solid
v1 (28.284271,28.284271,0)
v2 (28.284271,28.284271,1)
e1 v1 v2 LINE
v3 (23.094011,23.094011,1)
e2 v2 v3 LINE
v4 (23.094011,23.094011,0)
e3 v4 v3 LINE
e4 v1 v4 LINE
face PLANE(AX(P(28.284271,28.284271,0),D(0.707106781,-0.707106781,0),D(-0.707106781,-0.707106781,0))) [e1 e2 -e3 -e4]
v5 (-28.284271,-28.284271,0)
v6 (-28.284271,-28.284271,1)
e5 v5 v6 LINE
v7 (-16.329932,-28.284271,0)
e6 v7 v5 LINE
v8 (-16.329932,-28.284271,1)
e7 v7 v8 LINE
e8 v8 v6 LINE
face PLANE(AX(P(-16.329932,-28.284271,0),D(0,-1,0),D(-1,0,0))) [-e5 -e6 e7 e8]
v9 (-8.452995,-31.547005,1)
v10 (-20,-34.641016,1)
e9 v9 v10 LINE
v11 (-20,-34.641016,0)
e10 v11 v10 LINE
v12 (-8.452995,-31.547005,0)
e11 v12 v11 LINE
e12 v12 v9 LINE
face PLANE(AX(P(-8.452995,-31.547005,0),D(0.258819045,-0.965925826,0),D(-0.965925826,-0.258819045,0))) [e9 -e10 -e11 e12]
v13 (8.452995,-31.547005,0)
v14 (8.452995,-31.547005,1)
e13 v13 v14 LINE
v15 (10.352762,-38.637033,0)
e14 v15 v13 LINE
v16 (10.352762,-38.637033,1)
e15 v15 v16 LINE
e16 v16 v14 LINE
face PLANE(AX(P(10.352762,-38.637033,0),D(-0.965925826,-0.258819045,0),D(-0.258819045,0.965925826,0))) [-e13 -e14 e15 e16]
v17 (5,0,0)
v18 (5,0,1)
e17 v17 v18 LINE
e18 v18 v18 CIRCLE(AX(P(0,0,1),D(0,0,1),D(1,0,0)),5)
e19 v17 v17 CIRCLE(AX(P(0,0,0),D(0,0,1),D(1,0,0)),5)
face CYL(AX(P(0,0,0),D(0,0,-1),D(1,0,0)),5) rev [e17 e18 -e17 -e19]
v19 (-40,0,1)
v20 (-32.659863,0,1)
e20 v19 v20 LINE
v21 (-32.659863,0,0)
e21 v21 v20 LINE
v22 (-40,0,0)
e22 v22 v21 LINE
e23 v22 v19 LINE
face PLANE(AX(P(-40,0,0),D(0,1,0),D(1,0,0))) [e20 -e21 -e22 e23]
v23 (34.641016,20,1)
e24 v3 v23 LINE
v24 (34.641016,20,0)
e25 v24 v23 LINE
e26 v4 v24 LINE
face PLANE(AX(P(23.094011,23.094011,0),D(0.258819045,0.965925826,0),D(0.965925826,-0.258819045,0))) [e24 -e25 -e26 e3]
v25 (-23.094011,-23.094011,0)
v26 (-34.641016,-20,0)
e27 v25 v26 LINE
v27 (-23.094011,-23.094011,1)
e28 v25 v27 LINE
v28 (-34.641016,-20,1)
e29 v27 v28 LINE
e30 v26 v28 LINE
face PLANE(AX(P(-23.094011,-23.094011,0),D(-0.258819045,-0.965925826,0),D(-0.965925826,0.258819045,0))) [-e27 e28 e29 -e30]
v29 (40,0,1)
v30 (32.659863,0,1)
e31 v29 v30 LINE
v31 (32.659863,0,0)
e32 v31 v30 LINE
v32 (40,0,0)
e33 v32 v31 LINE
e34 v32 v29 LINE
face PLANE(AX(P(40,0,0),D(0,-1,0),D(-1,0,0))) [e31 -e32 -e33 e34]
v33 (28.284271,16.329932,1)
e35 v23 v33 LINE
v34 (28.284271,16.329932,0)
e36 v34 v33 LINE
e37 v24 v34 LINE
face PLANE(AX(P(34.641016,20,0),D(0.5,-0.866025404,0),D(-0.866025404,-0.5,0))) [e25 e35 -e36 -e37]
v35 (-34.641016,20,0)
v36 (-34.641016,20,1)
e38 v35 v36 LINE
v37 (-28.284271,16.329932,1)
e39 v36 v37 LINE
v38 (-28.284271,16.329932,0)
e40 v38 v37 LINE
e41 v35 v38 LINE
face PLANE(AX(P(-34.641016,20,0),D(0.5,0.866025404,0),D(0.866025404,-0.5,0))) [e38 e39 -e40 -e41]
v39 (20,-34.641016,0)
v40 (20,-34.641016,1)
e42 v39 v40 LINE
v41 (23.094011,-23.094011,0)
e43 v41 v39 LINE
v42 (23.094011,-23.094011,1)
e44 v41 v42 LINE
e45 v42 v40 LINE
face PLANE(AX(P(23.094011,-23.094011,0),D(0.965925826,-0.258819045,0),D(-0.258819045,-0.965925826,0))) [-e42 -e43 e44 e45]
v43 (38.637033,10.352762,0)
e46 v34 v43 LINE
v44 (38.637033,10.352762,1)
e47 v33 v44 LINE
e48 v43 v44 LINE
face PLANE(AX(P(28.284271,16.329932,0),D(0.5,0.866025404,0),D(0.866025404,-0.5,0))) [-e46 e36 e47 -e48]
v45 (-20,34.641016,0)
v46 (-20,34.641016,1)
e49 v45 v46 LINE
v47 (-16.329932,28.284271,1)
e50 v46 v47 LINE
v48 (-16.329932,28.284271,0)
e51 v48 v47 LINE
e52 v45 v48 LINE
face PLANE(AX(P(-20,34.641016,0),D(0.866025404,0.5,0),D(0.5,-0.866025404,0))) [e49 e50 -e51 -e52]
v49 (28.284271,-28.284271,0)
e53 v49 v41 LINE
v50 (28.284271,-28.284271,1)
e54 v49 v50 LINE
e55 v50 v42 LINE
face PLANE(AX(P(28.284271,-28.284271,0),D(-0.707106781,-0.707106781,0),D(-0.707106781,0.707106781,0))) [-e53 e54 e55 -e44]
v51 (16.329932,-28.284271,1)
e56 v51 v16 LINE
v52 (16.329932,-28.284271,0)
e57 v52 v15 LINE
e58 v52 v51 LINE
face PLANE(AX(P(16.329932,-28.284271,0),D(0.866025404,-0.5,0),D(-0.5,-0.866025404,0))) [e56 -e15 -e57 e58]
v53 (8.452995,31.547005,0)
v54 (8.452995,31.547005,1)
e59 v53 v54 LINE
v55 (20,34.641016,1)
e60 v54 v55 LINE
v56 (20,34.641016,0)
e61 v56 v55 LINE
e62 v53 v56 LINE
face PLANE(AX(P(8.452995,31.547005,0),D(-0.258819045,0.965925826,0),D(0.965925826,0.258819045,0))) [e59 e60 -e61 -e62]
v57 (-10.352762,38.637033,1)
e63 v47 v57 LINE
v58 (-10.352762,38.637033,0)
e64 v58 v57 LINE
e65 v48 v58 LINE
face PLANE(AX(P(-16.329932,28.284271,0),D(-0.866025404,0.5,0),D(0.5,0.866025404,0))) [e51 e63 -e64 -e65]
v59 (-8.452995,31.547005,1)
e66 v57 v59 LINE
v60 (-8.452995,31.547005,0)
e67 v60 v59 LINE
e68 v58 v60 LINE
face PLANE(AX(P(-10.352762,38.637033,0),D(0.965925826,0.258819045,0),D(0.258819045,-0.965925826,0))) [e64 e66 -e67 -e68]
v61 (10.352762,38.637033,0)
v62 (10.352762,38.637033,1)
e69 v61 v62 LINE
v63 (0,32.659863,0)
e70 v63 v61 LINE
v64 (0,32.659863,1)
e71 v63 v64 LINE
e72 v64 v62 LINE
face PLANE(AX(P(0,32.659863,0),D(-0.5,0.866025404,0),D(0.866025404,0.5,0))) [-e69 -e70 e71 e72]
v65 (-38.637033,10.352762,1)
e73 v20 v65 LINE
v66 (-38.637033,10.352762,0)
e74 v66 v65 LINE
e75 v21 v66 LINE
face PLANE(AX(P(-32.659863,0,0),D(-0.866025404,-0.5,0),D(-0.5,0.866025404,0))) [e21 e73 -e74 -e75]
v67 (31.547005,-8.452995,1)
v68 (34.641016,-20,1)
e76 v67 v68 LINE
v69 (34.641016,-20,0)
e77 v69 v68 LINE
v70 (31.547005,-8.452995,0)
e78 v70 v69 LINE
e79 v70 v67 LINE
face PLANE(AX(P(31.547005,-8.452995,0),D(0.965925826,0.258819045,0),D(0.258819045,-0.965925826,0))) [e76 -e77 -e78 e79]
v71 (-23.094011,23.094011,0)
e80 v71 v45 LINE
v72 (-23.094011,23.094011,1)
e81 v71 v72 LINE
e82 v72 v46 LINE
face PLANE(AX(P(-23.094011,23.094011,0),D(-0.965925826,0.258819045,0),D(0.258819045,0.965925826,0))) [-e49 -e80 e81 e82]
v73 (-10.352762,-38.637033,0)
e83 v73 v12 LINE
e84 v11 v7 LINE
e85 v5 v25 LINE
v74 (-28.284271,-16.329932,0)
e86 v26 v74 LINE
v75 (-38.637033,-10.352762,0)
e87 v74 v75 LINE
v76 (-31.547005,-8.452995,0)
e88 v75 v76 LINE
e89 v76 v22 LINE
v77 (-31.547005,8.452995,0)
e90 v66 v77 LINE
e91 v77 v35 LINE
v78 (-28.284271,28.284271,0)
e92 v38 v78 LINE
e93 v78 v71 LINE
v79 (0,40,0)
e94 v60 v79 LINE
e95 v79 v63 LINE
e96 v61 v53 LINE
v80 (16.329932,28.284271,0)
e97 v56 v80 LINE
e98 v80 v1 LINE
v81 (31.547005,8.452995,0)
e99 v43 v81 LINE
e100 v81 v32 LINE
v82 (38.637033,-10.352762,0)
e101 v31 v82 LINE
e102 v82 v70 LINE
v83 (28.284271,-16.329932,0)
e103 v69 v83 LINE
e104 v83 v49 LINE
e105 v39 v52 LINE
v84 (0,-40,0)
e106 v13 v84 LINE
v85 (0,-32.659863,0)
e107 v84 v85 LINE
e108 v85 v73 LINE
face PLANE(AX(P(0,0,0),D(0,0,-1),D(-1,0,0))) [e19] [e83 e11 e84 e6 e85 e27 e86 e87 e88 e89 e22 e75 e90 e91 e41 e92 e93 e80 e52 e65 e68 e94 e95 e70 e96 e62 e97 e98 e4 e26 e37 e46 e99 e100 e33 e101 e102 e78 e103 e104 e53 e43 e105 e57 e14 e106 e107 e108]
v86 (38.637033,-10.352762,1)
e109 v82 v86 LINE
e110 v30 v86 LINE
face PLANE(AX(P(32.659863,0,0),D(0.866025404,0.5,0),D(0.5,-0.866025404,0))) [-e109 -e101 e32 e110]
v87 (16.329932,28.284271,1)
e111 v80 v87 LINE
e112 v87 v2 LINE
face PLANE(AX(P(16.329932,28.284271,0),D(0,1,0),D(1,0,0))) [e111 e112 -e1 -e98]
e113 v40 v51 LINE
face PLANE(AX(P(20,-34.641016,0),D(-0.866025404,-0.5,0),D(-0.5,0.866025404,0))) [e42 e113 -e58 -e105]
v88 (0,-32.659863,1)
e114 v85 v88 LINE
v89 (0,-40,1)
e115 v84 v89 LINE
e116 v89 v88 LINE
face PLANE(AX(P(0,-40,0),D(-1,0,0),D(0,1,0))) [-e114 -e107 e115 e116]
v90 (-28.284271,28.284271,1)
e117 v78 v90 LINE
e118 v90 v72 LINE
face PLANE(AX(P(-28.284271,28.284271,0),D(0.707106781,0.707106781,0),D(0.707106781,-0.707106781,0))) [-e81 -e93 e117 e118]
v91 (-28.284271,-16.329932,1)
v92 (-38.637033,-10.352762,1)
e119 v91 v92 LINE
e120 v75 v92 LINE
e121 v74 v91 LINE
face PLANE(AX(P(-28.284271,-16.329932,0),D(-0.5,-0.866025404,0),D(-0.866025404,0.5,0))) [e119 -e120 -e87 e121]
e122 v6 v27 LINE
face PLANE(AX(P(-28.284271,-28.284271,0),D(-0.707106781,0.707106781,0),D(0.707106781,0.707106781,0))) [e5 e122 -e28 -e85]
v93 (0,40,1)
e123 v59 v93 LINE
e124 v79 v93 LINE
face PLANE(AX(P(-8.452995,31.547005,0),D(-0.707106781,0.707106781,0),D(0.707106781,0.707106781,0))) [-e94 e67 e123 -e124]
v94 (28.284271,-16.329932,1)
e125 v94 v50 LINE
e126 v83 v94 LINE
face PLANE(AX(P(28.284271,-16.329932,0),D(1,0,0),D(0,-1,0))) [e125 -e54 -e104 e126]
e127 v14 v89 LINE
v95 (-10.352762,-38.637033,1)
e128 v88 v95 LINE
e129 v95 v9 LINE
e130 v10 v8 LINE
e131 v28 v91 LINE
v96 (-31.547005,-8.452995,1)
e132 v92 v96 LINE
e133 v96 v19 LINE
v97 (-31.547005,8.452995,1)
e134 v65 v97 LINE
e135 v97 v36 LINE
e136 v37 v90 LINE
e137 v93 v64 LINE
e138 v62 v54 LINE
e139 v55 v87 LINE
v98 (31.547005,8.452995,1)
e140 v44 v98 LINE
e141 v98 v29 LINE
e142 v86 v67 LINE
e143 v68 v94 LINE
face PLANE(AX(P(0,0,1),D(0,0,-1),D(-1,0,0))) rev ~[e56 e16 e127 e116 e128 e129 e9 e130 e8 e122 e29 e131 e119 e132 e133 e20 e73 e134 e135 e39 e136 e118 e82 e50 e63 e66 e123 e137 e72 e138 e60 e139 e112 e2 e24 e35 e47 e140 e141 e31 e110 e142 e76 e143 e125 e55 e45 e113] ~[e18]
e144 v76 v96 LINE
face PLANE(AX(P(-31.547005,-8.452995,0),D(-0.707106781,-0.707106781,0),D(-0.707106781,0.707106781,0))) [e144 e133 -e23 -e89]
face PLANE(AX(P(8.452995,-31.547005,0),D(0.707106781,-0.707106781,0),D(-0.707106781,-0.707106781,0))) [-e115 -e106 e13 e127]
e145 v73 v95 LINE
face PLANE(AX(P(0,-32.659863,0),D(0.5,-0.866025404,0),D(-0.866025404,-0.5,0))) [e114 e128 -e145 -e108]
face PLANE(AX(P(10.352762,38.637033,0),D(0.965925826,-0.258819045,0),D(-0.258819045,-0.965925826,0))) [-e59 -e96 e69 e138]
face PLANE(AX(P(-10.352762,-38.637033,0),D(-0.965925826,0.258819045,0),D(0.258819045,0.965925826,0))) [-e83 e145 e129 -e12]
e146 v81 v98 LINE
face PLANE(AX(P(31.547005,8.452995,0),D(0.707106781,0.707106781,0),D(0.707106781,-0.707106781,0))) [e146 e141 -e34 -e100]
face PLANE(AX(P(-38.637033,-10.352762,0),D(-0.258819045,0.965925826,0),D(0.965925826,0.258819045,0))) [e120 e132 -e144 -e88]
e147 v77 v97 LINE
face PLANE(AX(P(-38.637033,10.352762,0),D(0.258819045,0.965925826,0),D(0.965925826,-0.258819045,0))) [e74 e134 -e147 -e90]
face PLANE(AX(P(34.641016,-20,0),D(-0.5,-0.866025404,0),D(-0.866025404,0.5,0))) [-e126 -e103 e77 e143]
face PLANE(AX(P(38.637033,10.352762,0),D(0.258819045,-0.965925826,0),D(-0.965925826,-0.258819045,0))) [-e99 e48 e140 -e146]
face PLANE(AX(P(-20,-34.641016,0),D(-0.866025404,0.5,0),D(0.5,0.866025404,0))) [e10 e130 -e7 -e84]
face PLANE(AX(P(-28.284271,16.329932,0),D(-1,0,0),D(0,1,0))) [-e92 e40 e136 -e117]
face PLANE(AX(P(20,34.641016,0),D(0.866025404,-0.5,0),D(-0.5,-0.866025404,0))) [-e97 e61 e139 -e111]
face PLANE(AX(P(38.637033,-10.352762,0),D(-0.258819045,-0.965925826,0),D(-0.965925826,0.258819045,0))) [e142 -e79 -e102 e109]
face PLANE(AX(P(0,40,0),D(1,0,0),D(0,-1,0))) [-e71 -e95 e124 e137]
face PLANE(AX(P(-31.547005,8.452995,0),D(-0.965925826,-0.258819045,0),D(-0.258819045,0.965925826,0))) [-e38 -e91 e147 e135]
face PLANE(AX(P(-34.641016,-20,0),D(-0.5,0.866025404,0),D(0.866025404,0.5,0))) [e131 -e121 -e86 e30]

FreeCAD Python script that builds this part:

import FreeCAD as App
import Part
import Sketcher
Q = App.Units.Quantity


def add_polygon(sketch, points):
    """Adds a closed chain of lines whose ends are joined by coincident constraints."""
    first, n = sketch.GeometryCount, len(points)
    for a, b in zip(points, points[1:] + points[:1]):
        sketch.addGeometry(Part.LineSegment(App.Vector(*a, 0), App.Vector(*b, 0)), False)
    for i in range(n):
        sketch.addConstraint(Sketcher.Constraint("Coincident", first + i, 2, first + (i + 1) % n, 1))

doc = App.newDocument("Part")
body = doc.addObject("PartDesign::Body", "Body")

# Sketch on XY plane
sketch1 = body.newObject("Sketcher::SketchObject", "Sketch")
sketch1.AttachmentSupport = (doc.getObject("XY_Plane"), [""])
sketch1.MapMode = "FlatFace"
add_polygon(sketch1, [(0, 33), (0, 40), (-8, 32), (-10, 39), (-16, 28), (-20, 35), (-23, 23), (-28, 28), (-28, 16), (-35, 20), (-32, 8), (-39, 10), (-33, 0), (-40, 0), (-32, -8), (-39, -10), (-28, -16), (-35, -20), (-23, -23), (-28, -28), (-16, -28), (-20, -35), (-8, -32), (-10, -39), (0, -33), (0, -40), (8, -32), (10, -39), (16, -28), (20, -35), (23, -23), (28, -28), (28, -16), (35, -20), (32, -8), (39, -10), (33, 0), (40, 0), (32, 8), (39, 10), (28, 16), (35, 20), (23, 23), (28, 28), (16, 28), (20, 35), (8, 32), (10, 39)])  # lines 0-47
sketch1.addGeometry(Part.Circle(App.Vector(0, 0, 0), App.Vector(0, 0, 1), 5), False)  # 48
sketch1.addConstraint([
    Sketcher.Constraint("Vertical", 0),
    Sketcher.Constraint("Vertical", 7),
    Sketcher.Constraint("Horizontal", 12),
    Sketcher.Constraint("Horizontal", 19),
    Sketcher.Constraint("Vertical", 24),
    Sketcher.Constraint("Vertical", 31),
    Sketcher.Constraint("Horizontal", 36),
    Sketcher.Constraint("Horizontal", 43),
    Sketcher.Constraint("Coincident", 48, 3, -1, 1),
    Sketcher.Constraint("Symmetric", 0, 2, 24, 2, -1, 1),
    Sketcher.Constraint("Symmetric", 1, 2, 25, 2, -1, 1),
    Sketcher.Constraint("Symmetric", 2, 2, 26, 2, -1, 1),
    Sketcher.Constraint("Symmetric", 3, 2, 27, 2, -1, 1),
    Sketcher.Constraint("Symmetric", 4, 2, 28, 2, -1, 1),
    Sketcher.Constraint("Symmetric", 5, 2, 29, 2, -1, 1),
    Sketcher.Constraint("Symmetric", 6, 2, 30, 2, -1, 1),
    Sketcher.Constraint("Symmetric", 8, 2, 32, 2, -1, 1),
    Sketcher.Constraint("Symmetric", 9, 2, 33, 2, -1, 1),
    Sketcher.Constraint("Symmetric", 10, 2, 34, 2, -1, 1),
    Sketcher.Constraint("Symmetric", 11, 2, 35, 2, -1, 1),
    Sketcher.Constraint("Symmetric", 13, 2, 37, 2, -1, 1),
    Sketcher.Constraint("Symmetric", 14, 2, 38, 2, -1, 1),
    Sketcher.Constraint("Symmetric", 15, 2, 39, 2, -1, 1),
    Sketcher.Constraint("Symmetric", 16, 2, 40, 2, -1, 1),
    Sketcher.Constraint("Symmetric", 17, 2, 41, 2, -1, 1),
    Sketcher.Constraint("Symmetric", 18, 2, 42, 2, -1, 1),
    Sketcher.Constraint("Symmetric", 20, 2, 44, 2, -1, 1),
    Sketcher.Constraint("Symmetric", 21, 2, 45, 2, -1, 1),
    Sketcher.Constraint("Symmetric", 22, 2, 46, 2, -1, 1),
    Sketcher.Constraint("Symmetric", 21, 2, 25, 2, -2),
    Sketcher.Constraint("Symmetric", 22, 2, 26, 2, -2),
    Sketcher.Constraint("Symmetric", 19, 2, 27, 2, -2),
    Sketcher.Constraint("Symmetric", 20, 2, 28, 2, -2),
    Sketcher.Constraint("Symmetric", 17, 2, 29, 2, -2),
    Sketcher.Constraint("Symmetric", 18, 2, 30, 2, -2),
    Sketcher.Constraint("Symmetric", 15, 2, 31, 2, -2),
    Sketcher.Constraint("Symmetric", 16, 2, 32, 2, -2),
    Sketcher.Constraint("Symmetric", 13, 2, 33, 2, -2),
    Sketcher.Constraint("Symmetric", 14, 2, 34, 2, -2),
    Sketcher.Constraint("Symmetric", 12, 2, 36, 2, -2),
    Sketcher.Constraint("Symmetric", 23, 2, 47, 2, -1),
    Sketcher.Constraint("Perpendicular", 1, 6),
    Sketcher.Constraint("Perpendicular", 3, 8),
    Sketcher.Constraint("Parallel", 2, 9),
    Sketcher.Constraint("Perpendicular", 5, 10),
    Sketcher.Constraint("Parallel", 4, 11),
    Sketcher.Constraint("Parallel", 6, 13),
    Sketcher.Constraint("Perpendicular", 9, 14),
    Sketcher.Constraint("Parallel", 8, 15),
    Sketcher.Constraint("Perpendicular", 11, 16),
    Sketcher.Constraint("Parallel", 10, 17),
    Sketcher.Constraint("Perpendicular", 13, 18),
    Sketcher.Constraint("Perpendicular", 15, 20),
    Sketcher.Constraint("Parallel", 14, 21),
    Sketcher.Constraint("Parallel", 16, 23),
    Sketcher.Constraint("Perpendicular", 39, 44),
    Sketcher.Constraint("Equal", 36, 0),
    Sketcher.Constraint("Equal", 43, 7),
    Sketcher.Constraint("Equal", 1, 3),
    Sketcher.Constraint("Equal", 2, 4),
    Sketcher.Constraint("Equal", 3, 5),
    Sketcher.Constraint("Equal", 4, 6),
    Sketcher.Constraint("Equal", 5, 9),
    Sketcher.Constraint("Equal", 8, 10),
    Sketcher.Constraint("Diameter", 48, Q("10 mm")),
    Sketcher.Constraint("DistanceY", -1, 1, 0, 2, Q("40 mm")),
])
pad1 = body.newObject("PartDesign::Pad", "Pad")
pad1.Profile = sketch1
pad1.Length = 1

doc.recompute()
